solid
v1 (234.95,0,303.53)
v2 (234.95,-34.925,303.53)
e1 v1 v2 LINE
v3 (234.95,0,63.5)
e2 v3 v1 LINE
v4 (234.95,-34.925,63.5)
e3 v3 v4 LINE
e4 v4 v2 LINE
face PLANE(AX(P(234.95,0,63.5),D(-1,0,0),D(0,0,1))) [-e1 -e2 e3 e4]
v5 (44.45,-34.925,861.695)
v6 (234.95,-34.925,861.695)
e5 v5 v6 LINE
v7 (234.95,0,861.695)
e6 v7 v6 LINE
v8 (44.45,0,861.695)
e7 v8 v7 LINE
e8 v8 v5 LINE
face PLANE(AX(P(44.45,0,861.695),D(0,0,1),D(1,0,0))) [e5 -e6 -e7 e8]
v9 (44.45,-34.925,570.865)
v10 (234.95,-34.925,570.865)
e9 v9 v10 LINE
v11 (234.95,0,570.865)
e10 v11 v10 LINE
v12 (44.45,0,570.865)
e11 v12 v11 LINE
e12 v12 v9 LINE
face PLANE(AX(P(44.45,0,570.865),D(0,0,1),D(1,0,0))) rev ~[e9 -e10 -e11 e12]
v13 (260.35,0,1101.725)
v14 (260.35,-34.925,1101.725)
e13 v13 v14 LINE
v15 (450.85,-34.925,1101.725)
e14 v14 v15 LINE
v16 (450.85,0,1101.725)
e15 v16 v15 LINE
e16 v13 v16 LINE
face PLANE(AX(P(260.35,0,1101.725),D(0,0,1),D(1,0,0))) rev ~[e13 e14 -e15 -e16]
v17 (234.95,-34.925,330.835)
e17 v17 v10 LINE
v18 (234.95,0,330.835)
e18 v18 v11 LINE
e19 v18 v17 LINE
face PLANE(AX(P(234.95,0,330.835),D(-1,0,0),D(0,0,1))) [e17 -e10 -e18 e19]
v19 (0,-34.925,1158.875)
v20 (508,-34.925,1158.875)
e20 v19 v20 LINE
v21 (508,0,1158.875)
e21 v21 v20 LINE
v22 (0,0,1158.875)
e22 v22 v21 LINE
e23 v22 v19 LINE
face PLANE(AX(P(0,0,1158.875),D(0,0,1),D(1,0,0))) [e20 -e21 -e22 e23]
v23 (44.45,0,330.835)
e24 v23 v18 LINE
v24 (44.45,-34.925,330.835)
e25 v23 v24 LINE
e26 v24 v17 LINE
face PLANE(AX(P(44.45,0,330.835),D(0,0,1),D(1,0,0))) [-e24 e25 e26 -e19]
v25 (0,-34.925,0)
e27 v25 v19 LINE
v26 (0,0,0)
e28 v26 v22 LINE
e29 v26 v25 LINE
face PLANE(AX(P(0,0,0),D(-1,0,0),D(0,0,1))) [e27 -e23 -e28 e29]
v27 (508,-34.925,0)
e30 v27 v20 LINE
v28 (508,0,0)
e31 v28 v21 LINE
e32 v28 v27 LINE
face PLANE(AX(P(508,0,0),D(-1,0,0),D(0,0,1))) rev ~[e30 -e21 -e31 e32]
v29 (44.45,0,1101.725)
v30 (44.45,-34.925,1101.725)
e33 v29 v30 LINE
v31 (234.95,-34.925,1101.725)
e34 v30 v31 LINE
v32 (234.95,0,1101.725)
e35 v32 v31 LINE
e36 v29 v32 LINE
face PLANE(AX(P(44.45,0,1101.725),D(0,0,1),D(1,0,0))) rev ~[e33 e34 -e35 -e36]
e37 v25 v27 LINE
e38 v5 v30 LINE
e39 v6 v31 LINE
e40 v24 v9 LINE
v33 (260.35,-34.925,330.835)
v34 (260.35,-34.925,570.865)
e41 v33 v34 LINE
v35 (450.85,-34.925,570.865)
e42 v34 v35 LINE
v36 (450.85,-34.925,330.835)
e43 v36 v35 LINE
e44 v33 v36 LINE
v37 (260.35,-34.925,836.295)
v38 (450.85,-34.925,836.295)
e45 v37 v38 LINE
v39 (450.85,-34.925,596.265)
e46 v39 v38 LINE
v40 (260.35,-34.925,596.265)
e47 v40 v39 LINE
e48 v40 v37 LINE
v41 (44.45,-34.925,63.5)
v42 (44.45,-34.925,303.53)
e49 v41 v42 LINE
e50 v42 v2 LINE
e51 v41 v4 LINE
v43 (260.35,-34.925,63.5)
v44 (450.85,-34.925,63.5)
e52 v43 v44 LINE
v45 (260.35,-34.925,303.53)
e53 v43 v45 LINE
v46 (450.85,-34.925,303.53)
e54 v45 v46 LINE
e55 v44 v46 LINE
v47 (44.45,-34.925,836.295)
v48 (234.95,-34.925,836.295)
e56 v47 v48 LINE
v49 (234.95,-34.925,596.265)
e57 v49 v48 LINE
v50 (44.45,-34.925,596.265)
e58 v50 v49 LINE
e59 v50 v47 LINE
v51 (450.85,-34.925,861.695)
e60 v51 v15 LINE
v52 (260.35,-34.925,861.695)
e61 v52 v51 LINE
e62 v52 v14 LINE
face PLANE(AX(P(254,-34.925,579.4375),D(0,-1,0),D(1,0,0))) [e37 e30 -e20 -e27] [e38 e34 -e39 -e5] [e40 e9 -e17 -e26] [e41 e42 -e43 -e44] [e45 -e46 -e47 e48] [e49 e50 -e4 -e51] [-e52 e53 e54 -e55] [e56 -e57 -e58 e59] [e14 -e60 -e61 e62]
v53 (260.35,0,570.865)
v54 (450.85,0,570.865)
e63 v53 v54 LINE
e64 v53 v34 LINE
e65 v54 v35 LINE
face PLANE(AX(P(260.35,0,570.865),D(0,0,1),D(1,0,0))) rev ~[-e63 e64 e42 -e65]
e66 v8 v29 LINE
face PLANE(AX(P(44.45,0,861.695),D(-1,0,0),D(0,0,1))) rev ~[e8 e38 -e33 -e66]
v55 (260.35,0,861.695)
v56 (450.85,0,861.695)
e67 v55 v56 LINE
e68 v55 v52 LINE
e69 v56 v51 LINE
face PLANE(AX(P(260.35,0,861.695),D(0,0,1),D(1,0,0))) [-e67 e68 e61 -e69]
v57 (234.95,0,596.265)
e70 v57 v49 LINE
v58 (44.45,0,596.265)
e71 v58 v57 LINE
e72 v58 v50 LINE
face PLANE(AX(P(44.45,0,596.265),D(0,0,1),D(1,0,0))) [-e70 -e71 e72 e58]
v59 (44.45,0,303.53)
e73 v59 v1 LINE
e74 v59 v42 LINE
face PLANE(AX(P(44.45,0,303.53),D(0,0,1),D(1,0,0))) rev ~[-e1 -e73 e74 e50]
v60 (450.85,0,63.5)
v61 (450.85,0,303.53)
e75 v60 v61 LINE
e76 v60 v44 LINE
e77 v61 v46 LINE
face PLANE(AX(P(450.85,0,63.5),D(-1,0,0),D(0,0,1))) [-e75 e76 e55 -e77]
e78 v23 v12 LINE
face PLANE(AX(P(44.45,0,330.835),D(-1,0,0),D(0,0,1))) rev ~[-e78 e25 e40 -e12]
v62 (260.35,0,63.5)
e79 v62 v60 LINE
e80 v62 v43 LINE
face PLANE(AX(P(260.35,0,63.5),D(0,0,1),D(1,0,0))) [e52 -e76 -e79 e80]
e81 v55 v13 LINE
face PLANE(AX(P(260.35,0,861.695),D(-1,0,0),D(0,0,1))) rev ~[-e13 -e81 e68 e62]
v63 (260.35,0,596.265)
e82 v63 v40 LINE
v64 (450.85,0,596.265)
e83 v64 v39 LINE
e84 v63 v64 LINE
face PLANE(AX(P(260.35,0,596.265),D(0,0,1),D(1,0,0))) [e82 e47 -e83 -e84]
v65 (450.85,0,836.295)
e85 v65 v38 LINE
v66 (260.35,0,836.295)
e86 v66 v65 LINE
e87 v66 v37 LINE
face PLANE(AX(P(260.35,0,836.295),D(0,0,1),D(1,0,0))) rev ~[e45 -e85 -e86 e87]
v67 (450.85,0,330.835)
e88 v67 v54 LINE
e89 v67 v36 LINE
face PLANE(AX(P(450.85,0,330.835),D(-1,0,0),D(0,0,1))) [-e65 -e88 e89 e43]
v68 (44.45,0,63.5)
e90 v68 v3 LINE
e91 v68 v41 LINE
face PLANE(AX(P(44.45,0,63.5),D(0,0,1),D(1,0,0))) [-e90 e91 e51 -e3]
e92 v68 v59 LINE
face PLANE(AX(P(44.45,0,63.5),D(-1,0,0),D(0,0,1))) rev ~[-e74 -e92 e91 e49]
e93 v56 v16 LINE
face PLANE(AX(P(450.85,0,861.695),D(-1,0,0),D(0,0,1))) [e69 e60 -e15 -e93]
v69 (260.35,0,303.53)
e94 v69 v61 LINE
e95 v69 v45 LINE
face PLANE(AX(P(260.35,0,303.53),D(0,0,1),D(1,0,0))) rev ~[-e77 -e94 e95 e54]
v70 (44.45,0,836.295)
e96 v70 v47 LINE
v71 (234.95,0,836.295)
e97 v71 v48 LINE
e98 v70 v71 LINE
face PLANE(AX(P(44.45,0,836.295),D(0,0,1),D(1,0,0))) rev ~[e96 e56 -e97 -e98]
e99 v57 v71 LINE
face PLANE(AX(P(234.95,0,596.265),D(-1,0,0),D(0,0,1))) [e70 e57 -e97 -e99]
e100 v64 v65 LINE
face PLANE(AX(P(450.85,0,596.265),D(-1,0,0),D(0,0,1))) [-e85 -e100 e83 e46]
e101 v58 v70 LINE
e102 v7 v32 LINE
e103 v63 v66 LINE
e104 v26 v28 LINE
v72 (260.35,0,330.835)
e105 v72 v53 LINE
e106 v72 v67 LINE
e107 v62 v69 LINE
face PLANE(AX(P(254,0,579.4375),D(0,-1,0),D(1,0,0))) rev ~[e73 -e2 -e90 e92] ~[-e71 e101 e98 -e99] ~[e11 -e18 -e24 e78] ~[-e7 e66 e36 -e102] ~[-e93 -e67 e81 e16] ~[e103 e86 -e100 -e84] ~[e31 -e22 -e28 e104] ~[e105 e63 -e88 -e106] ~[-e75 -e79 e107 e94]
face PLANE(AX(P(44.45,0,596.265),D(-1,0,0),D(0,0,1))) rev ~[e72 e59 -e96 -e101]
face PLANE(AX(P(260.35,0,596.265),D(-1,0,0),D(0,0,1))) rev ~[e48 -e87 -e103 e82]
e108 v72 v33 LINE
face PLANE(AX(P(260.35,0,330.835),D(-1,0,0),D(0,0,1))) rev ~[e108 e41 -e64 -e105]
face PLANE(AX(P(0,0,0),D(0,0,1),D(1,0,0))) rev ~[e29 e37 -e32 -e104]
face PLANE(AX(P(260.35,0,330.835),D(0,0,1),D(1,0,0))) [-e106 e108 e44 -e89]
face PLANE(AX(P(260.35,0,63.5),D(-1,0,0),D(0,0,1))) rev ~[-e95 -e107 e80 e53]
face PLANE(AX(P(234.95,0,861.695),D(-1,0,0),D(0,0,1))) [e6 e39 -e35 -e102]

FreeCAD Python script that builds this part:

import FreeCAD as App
import Part
import Sketcher

V = App.Vector
Q = App.Units.Quantity

doc = App.newDocument("Part")
params = doc.addObject("Spreadsheet::Sheet", "Params")
for row, (alias, value) in enumerate([
    ("sketch1_width", "20 in"),
    ("sketch1_width2", "7.5 in"),
    ("sketch1_height", "9.45 in"),
    ("sketch1_height2", "45.625 in"),
    ("pad1_length", "1.375 in"),
], start=1):
    params.set(f"A{row}", alias)
    params.set(f"B{row}", "=" + value)
    params.setAlias(f"B{row}", alias)

body = doc.addObject("PartDesign::Body", "Body")

sketch1 = doc.addObject("Sketcher::SketchObject", "Sketch")
body.addObject(sketch1)
sketch1.AttachmentSupport = (doc.XZ_Plane, [""])
sketch1.MapMode = "FlatFace"
sketch1.addGeometry([
    Part.LineSegment(V(0, 1158.875, 0), V(0, 0, 0)),
    Part.LineSegment(V(0, 0, 0), V(508, 0, 0)),
    Part.LineSegment(V(508, 0, 0), V(508, 1158.875, 0)),
    Part.LineSegment(V(508, 1158.875, 0), V(0, 1158.875, 0)),
    Part.LineSegment(V(234.95, 63.5, 0), V(44.45, 63.5, 0)),
    Part.LineSegment(V(44.45, 63.5, 0), V(44.45, 303.53, 0)),
    Part.LineSegment(V(44.45, 303.53, 0), V(234.95, 303.53, 0)),
    Part.LineSegment(V(234.95, 303.53, 0), V(234.95, 63.5, 0)),
    Part.LineSegment(V(234.95, 330.835, 0), V(44.45, 330.835, 0)),
    Part.LineSegment(V(44.45, 330.835, 0), V(44.45, 570.865, 0)),
    Part.LineSegment(V(44.45, 570.865, 0), V(234.95, 570.865, 0)),
    Part.LineSegment(V(234.95, 570.865, 0), V(234.95, 330.835, 0)),
    Part.LineSegment(V(450.85, 63.5, 0), V(260.35, 63.5, 0)),
    Part.LineSegment(V(260.35, 63.5, 0), V(260.35, 303.53, 0)),
    Part.LineSegment(V(260.35, 303.53, 0), V(450.85, 303.53, 0)),
    Part.LineSegment(V(450.85, 303.53, 0), V(450.85, 63.5, 0)),
    Part.LineSegment(V(450.85, 330.835, 0), V(260.35, 330.835, 0)),
    Part.LineSegment(V(260.35, 330.835, 0), V(260.35, 570.865, 0)),
    Part.LineSegment(V(260.35, 570.865, 0), V(450.85, 570.865, 0)),
    Part.LineSegment(V(450.85, 570.865, 0), V(450.85, 330.835, 0)),
    Part.LineSegment(V(234.95, 596.265, 0), V(44.45, 596.265, 0)),
    Part.LineSegment(V(44.45, 596.265, 0), V(44.45, 836.295, 0)),
    Part.LineSegment(V(44.45, 836.295, 0), V(234.95, 836.295, 0)),
    Part.LineSegment(V(234.95, 836.295, 0), V(234.95, 596.265, 0)),
    Part.LineSegment(V(234.95, 861.695, 0), V(44.45, 861.695, 0)),
    Part.LineSegment(V(44.45, 861.695, 0), V(44.45, 1101.725, 0)),
    Part.LineSegment(V(44.45, 1101.725, 0), V(234.95, 1101.725, 0)),
    Part.LineSegment(V(234.95, 1101.725, 0), V(234.95, 861.695, 0)),
    Part.LineSegment(V(450.85, 596.265, 0), V(260.35, 596.265, 0)),
    Part.LineSegment(V(260.35, 596.265, 0), V(260.35, 836.295, 0)),
    Part.LineSegment(V(260.35, 836.295, 0), V(450.85, 836.295, 0)),
    Part.LineSegment(V(450.85, 836.295, 0), V(450.85, 596.265, 0)),
    Part.LineSegment(V(450.85, 861.695, 0), V(260.35, 861.695, 0)),
    Part.LineSegment(V(260.35, 861.695, 0), V(260.35, 1101.725, 0)),
    Part.LineSegment(V(260.35, 1101.725, 0), V(450.85, 1101.725, 0)),
    Part.LineSegment(V(450.85, 1101.725, 0), V(450.85, 861.695, 0)),
], False)
sketch1.addConstraint([
    Sketcher.Constraint("Coincident", 0, 2, 1, 1),
    Sketcher.Constraint("Coincident", 1, 2, 2, 1),
    Sketcher.Constraint("Coincident", 2, 2, 3, 1),
    Sketcher.Constraint("Coincident", 3, 2, 0, 1),
    Sketcher.Constraint("Coincident", 4, 2, 5, 1),
    Sketcher.Constraint("Coincident", 5, 2, 6, 1),
    Sketcher.Constraint("Coincident", 6, 2, 7, 1),
    Sketcher.Constraint("Coincident", 7, 2, 4, 1),
    Sketcher.Constraint("Coincident", 8, 2, 9, 1),
    Sketcher.Constraint("Coincident", 9, 2, 10, 1),
    Sketcher.Constraint("Coincident", 10, 2, 11, 1),
    Sketcher.Constraint("Coincident", 11, 2, 8, 1),
    Sketcher.Constraint("Coincident", 12, 2, 13, 1),
    Sketcher.Constraint("Coincident", 13, 2, 14, 1),
    Sketcher.Constraint("Coincident", 14, 2, 15, 1),
    Sketcher.Constraint("Coincident", 15, 2, 12, 1),
    Sketcher.Constraint("Coincident", 16, 2, 17, 1),
    Sketcher.Constraint("Coincident", 17, 2, 18, 1),
    Sketcher.Constraint("Coincident", 18, 2, 19, 1),
    Sketcher.Constraint("Coincident", 19, 2, 16, 1),
    Sketcher.Constraint("Coincident", 20, 2, 21, 1),
    Sketcher.Constraint("Coincident", 21, 2, 22, 1),
    Sketcher.Constraint("Coincident", 22, 2, 23, 1),
    Sketcher.Constraint("Coincident", 23, 2, 20, 1),
    Sketcher.Constraint("Coincident", 24, 2, 25, 1),
    Sketcher.Constraint("Coincident", 25, 2, 26, 1),
    Sketcher.Constraint("Coincident", 26, 2, 27, 1),
    Sketcher.Constraint("Coincident", 27, 2, 24, 1),
    Sketcher.Constraint("Coincident", 28, 2, 29, 1),
    Sketcher.Constraint("Coincident", 29, 2, 30, 1),
    Sketcher.Constraint("Coincident", 30, 2, 31, 1),
    Sketcher.Constraint("Coincident", 31, 2, 28, 1),
    Sketcher.Constraint("Coincident", 32, 2, 33, 1),
    Sketcher.Constraint("Coincident", 33, 2, 34, 1),
    Sketcher.Constraint("Coincident", 34, 2, 35, 1),
    Sketcher.Constraint("Coincident", 35, 2, 32, 1),
    Sketcher.Constraint("Vertical", 0),
    Sketcher.Constraint("Horizontal", 1),
    Sketcher.Constraint("Vertical", 2),
    Sketcher.Constraint("Horizontal", 3),
    Sketcher.Constraint("Horizontal", 4),
    Sketcher.Constraint("Vertical", 5),
    Sketcher.Constraint("Horizontal", 6),
    Sketcher.Constraint("Vertical", 7),
    Sketcher.Constraint("Horizontal", 8),
    Sketcher.Constraint("Vertical", 9),
    Sketcher.Constraint("Horizontal", 10),
    Sketcher.Constraint("Vertical", 11),
    Sketcher.Constraint("Horizontal", 12),
    Sketcher.Constraint("Vertical", 13),
    Sketcher.Constraint("Horizontal", 14),
    Sketcher.Constraint("Vertical", 15),
    Sketcher.Constraint("Horizontal", 16),
    Sketcher.Constraint("Vertical", 17),
    Sketcher.Constraint("Horizontal", 18),
    Sketcher.Constraint("Vertical", 19),
    Sketcher.Constraint("Horizontal", 20),
    Sketcher.Constraint("Vertical", 21),
    Sketcher.Constraint("Horizontal", 22),
    Sketcher.Constraint("Vertical", 23),
    Sketcher.Constraint("Horizontal", 24),
    Sketcher.Constraint("Vertical", 25),
    Sketcher.Constraint("Horizontal", 26),
    Sketcher.Constraint("Vertical", 27),
    Sketcher.Constraint("Horizontal", 28),
    Sketcher.Constraint("Vertical", 29),
    Sketcher.Constraint("Horizontal", 30),
    Sketcher.Constraint("Vertical", 31),
    Sketcher.Constraint("Horizontal", 32),
    Sketcher.Constraint("Vertical", 33),
    Sketcher.Constraint("Horizontal", 34),
    Sketcher.Constraint("Vertical", 35),
    Sketcher.Constraint("Coincident", 0, 2, -1, 1),
    Sketcher.Constraint("Horizontal", 7, 2, 12, 2),
    Sketcher.Constraint("Horizontal", 6, 2, 13, 2),
    Sketcher.Constraint("Horizontal", 11, 2, 16, 2),
    Sketcher.Constraint("Horizontal", 10, 2, 17, 2),
    Sketcher.Constraint("Horizontal", 23, 2, 28, 2),
    Sketcher.Constraint("Horizontal", 22, 2, 29, 2),
    Sketcher.Constraint("Horizontal", 27, 2, 32, 2),
    Sketcher.Constraint("Horizontal", 26, 2, 33, 2),
    Sketcher.Constraint("Vertical", 5, 2, 8, 2),
    Sketcher.Constraint("Vertical", 7, 2, 10, 2),
    Sketcher.Constraint("Vertical", 13, 2, 16, 2),
    Sketcher.Constraint("Vertical", 15, 2, 18, 2),
    Sketcher.Constraint("Vertical", 9, 2, 20, 2),
    Sketcher.Constraint("Vertical", 11, 2, 22, 2),
    Sketcher.Constraint("Vertical", 21, 2, 24, 2),
    Sketcher.Constraint("Vertical", 23, 2, 26, 2),
    Sketcher.Constraint("Vertical", 17, 2, 28, 2),
    Sketcher.Constraint("Vertical", 19, 2, 30, 2),
    Sketcher.Constraint("Vertical", 29, 2, 32, 2),
    Sketcher.Constraint("Vertical", 31, 2, 34, 2),
    Sketcher.Constraint("Equal", 10, 12),
    Sketcher.Constraint("Equal", 7, 9),
    Sketcher.Constraint("Equal", 19, 21),
    Sketcher.Constraint("Equal", 23, 25),
    Sketcher.Constraint("DistanceX", 1, 1, 1, 2, Q("20 in")),
    Sketcher.Constraint("DistanceX", 4, 2, 4, 1, Q("7.5 in")),
    Sketcher.Constraint("DistanceX", 7, 2, 12, 2, Q("1 in")),
    Sketcher.Constraint("DistanceY", 9, 2, 20, 2, Q("1 in")),
    Sketcher.Constraint("DistanceY", 21, 2, 24, 2, Q("1 in")),
    Sketcher.Constraint("DistanceY", 5, 1, 5, 2, Q("9.45 in")),
    Sketcher.Constraint("DistanceY", -1, 1, 4, 2, Q("2.5 in")),
    Sketcher.Constraint("DistanceY", 21, 2, 3, 2, Q("12.7 in")),
    Sketcher.Constraint("DistanceY", 0, 2, 0, 1, Q("45.625 in")),
    Sketcher.Constraint("DistanceX", -1, 1, 4, 2, Q("1.75 in")),
])
sketch1.setExpression("Constraints[97]", "Params.sketch1_width")
sketch1.setExpression("Constraints[98]", "Params.sketch1_width2")
sketch1.setExpression("Constraints[102]", "Params.sketch1_height")
sketch1.setExpression("Constraints[105]", "Params.sketch1_height2")
pad1 = doc.addObject("PartDesign::Pad", "Pad")
body.addObject(pad1)
pad1.Profile = sketch1
pad1.setExpression("Length", "Params.pad1_length")

doc.recompute()
